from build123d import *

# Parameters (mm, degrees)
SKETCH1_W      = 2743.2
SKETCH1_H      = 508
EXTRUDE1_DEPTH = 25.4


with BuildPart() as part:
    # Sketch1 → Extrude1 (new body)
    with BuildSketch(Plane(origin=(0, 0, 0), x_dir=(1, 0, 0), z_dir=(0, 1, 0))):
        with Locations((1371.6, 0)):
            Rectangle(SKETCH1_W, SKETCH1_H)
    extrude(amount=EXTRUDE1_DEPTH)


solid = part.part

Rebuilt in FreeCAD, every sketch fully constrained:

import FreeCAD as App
import Part
import Sketcher
Q = App.Units.Quantity


def add_polygon(sketch, points):
    """Adds a closed chain of lines whose ends are joined by coincident constraints."""
    first, n = sketch.GeometryCount, len(points)
    for a, b in zip(points, points[1:] + points[:1]):
        sketch.addGeometry(Part.LineSegment(App.Vector(*a, 0), App.Vector(*b, 0)), False)
    for i in range(n):
        sketch.addConstraint(Sketcher.Constraint("Coincident", first + i, 2, first + (i + 1) % n, 1))

doc = App.newDocument("Part")
body = doc.addObject("PartDesign::Body", "Body")

sketch1 = doc.addObject("Sketcher::SketchObject", "Sketch")
body.addObject(sketch1)
sketch1.AttachmentSupport = (doc.XZ_Plane, [""])
sketch1.MapMode = "FlatFace"
add_polygon(sketch1, [(0, -254), (0, 254), (2743, 254), (2743, -254)])
sketch1.addConstraint([
    Sketcher.Constraint("Vertical", 0),
    Sketcher.Constraint("Horizontal", 1),
    Sketcher.Constraint("Vertical", 2),
    Sketcher.Constraint("Horizontal", 3),
    Sketcher.Constraint("Symmetric", 0, 2, 3, 2, -1, 1),
    Sketcher.Constraint("DistanceX", 1, 1, 1, 2, Q("108 in")),
    Sketcher.Constraint("DistanceY", 0, 1, 0, 2, Q("20 in")),
])
pad1 = doc.addObject("PartDesign::Pad", "Pad")
body.addObject(pad1)
pad1.Profile = sketch1
pad1.Length = Q("1 in")
pad1.Reversed = True

doc.recompute()
